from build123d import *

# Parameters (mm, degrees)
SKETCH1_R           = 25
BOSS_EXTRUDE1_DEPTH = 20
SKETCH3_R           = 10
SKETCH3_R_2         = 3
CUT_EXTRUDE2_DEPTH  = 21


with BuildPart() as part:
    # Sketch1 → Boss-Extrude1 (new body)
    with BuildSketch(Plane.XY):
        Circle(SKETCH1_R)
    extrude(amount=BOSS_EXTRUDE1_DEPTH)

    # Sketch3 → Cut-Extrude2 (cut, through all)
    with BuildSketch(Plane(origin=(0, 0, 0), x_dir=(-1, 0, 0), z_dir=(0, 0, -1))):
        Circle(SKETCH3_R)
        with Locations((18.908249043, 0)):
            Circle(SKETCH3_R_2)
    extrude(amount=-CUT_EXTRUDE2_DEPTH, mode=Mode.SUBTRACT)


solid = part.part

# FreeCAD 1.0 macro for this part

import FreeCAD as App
import Part
import Sketcher

V = App.Vector
Q = App.Units.Quantity

doc = App.newDocument("Part")
body = doc.addObject("PartDesign::Body", "Body")

# Sketch on XY plane
sketch1 = doc.addObject("Sketcher::SketchObject", "Sketch")
body.addObject(sketch1)
sketch1.AttachmentSupport = (doc.XY_Plane, [""])
sketch1.MapMode = "FlatFace"
sketch1.addGeometry(Part.Circle(V(0, 0, 0), V(0, 0, 1), 25), False)
sketch1.addConstraint([
    Sketcher.Constraint("Coincident", 0, 3, -1, 1),
    Sketcher.Constraint("Diameter", 0, Q("50 mm")),
])
pad1 = doc.addObject("PartDesign::Pad", "Pad")
body.addObject(pad1)
pad1.Profile = sketch1
pad1.Length = 20

# Sketch on XY plane
sketch2 = doc.addObject("Sketcher::SketchObject", "Sketch001")
body.addObject(sketch2)
sketch2.AttachmentSupport = (doc.XY_Plane, [""])
sketch2.MapMode = "FlatFace"
sketch2.addGeometry([
    Part.Circle(V(0, 0, 0), V(0, 0, 1), 10),
    Part.Circle(V(-18.9, 0, 0), V(0, 0, 1), 3),
], False)
sketch2.addConstraint([
    Sketcher.Constraint("Coincident", 0, 3, -1, 1),
    Sketcher.Constraint("PointOnObject", 1, 3, -1),
    Sketcher.Constraint("Diameter", 0, Q("20 mm")),
    Sketcher.Constraint("Diameter", 1, Q("6 mm")),
    Sketcher.Constraint("DistanceX", 1, 3, -1, 1, Q("18.908249 mm")),
])
pocket1 = doc.addObject("PartDesign::Pocket", "Pocket")
body.addObject(pocket1)
pocket1.Profile = sketch2
pocket1.Type = "ThroughAll"
pocket1.Reversed = True

doc.recompute()
